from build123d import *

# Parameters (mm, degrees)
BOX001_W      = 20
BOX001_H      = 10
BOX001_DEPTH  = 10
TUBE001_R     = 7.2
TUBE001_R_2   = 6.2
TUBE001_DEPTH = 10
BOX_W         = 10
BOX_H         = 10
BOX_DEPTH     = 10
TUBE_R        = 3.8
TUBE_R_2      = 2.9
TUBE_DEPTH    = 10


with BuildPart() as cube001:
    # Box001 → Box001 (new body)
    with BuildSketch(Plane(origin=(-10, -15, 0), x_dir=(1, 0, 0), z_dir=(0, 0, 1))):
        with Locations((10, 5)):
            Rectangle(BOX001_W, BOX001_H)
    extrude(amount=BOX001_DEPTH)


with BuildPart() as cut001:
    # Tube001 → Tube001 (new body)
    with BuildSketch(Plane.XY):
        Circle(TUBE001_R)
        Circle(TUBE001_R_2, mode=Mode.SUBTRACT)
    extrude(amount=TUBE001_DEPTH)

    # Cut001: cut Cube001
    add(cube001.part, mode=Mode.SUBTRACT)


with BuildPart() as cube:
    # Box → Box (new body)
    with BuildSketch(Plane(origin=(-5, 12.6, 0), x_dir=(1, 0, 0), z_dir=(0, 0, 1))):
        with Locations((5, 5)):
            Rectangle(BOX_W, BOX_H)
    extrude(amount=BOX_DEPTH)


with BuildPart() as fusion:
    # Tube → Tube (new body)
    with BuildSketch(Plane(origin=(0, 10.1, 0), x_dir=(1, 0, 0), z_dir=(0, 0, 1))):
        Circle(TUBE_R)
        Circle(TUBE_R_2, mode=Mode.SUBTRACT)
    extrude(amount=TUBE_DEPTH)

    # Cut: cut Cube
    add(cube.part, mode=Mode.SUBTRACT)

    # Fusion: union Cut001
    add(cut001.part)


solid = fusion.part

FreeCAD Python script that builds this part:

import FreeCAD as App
import Part
import Sketcher

V = App.Vector


def add_polygon(sketch, points):
    """Adds a closed chain of lines whose ends are joined by coincident constraints."""
    first, n = sketch.GeometryCount, len(points)
    for a, b in zip(points, points[1:] + points[:1]):
        sketch.addGeometry(Part.LineSegment(App.Vector(*a, 0), App.Vector(*b, 0)), False)
    for i in range(n):
        sketch.addConstraint(Sketcher.Constraint("Coincident", first + i, 2, first + (i + 1) % n, 1))

doc = App.newDocument("Part")
body = doc.addObject("PartDesign::Body", "Body")

sketch1 = body.newObject("Sketcher::SketchObject", "Sketch")
sketch1.AttachmentSupport = (doc.getObject("XY_Plane"), [""])
sketch1.MapMode = "FlatFace"
add_polygon(sketch1, [(-10, -5), (-10, -15), (10, -15), (10, -5)])
sketch1.addConstraint([
    Sketcher.Constraint("Vertical", 0),
    Sketcher.Constraint("Horizontal", 1),
    Sketcher.Constraint("Vertical", 2),
    Sketcher.Constraint("Horizontal", 3),
    Sketcher.Constraint("DistanceX", 1, 1, 1, 2, 20.0),
    Sketcher.Constraint("DistanceY", 0, 2, 0, 1, 10.0),
    Sketcher.Constraint("DistanceX", 0, 2, -1, 1, 10.0),
    Sketcher.Constraint("DistanceY", 0, 2, -1, 1, 15.0),
])
pad1 = body.newObject("PartDesign::Pad", "Pad")
pad1.Profile = sketch1
pad1.Length = 10
body2 = doc.addObject("PartDesign::Body", "Body001")

sketch2 = body2.newObject("Sketcher::SketchObject", "Sketch001")
sketch2.AttachmentSupport = (doc.getObject("XY_Plane001"), [""])
sketch2.MapMode = "FlatFace"
sketch2.addGeometry([
    Part.Circle(V(0, 0, 0), V(0, 0, 1), 7),
    Part.Circle(V(0, 0, 0), V(0, 0, 1), 6),
], False)
sketch2.addConstraint([
    Sketcher.Constraint("Coincident", 0, 3, -1, 1),
    Sketcher.Constraint("Coincident", 1, 3, -1, 1),
    Sketcher.Constraint("Diameter", 0, 14.4),
    Sketcher.Constraint("Diameter", 1, 12.4),
])
pad2 = body2.newObject("PartDesign::Pad", "Pad001")
pad2.Profile = sketch2
pad2.Length = 10
doc.recompute()

boolean = body2.newObject("PartDesign::Boolean", "Boolean")
boolean.Type = "Cut"
boolean.addObjects([body])
body3 = doc.addObject("PartDesign::Body", "Body002")

sketch3 = body3.newObject("Sketcher::SketchObject", "Sketch002")
sketch3.AttachmentSupport = (doc.getObject("XY_Plane002"), [""])
sketch3.MapMode = "FlatFace"
add_polygon(sketch3, [(-5, 23), (-5, 13), (5, 13), (5, 23)])
sketch3.addConstraint([
    Sketcher.Constraint("Vertical", 0),
    Sketcher.Constraint("Horizontal", 1),
    Sketcher.Constraint("Vertical", 2),
    Sketcher.Constraint("Horizontal", 3),
    Sketcher.Constraint("Equal", 3, 0),
    Sketcher.Constraint("DistanceX", 1, 1, 1, 2, 10.0),
    Sketcher.Constraint("DistanceX", 0, 2, -1, 1, 5.0),
    Sketcher.Constraint("DistanceY", -1, 1, 0, 2, 12.6),
])
pad3 = body3.newObject("PartDesign::Pad", "Pad002")
pad3.Profile = sketch3
pad3.Length = 10
body4 = doc.addObject("PartDesign::Body", "Body003")

sketch4 = body4.newObject("Sketcher::SketchObject", "Sketch003")
sketch4.AttachmentSupport = (doc.getObject("XY_Plane003"), [""])
sketch4.MapMode = "FlatFace"
sketch4.addGeometry([
    Part.Circle(V(0, 10.1, 0), V(0, 0, 1), 3.8),
    Part.Circle(V(0, 10.1, 0), V(0, 0, 1), 2.9),
], False)
sketch4.addConstraint([
    Sketcher.Constraint("Coincident", 1, 3, 0, 3),
    Sketcher.Constraint("PointOnObject", 0, 3, -2),
    Sketcher.Constraint("Diameter", 0, 7.6),
    Sketcher.Constraint("Diameter", 1, 5.8),
    Sketcher.Constraint("DistanceY", -1, 1, 0, 3, 10.1),
])
pad4 = body4.newObject("PartDesign::Pad", "Pad003")
pad4.Profile = sketch4
pad4.Length = 10
doc.recompute()

boolean2 = body4.newObject("PartDesign::Boolean", "Boolean001")
boolean2.Type = "Cut"
boolean2.addObjects([body3])
doc.recompute()

boolean3 = body4.newObject("PartDesign::Boolean", "Boolean002")
boolean3.Type = "Fuse"
boolean3.addObjects([body2])

doc.recompute()
